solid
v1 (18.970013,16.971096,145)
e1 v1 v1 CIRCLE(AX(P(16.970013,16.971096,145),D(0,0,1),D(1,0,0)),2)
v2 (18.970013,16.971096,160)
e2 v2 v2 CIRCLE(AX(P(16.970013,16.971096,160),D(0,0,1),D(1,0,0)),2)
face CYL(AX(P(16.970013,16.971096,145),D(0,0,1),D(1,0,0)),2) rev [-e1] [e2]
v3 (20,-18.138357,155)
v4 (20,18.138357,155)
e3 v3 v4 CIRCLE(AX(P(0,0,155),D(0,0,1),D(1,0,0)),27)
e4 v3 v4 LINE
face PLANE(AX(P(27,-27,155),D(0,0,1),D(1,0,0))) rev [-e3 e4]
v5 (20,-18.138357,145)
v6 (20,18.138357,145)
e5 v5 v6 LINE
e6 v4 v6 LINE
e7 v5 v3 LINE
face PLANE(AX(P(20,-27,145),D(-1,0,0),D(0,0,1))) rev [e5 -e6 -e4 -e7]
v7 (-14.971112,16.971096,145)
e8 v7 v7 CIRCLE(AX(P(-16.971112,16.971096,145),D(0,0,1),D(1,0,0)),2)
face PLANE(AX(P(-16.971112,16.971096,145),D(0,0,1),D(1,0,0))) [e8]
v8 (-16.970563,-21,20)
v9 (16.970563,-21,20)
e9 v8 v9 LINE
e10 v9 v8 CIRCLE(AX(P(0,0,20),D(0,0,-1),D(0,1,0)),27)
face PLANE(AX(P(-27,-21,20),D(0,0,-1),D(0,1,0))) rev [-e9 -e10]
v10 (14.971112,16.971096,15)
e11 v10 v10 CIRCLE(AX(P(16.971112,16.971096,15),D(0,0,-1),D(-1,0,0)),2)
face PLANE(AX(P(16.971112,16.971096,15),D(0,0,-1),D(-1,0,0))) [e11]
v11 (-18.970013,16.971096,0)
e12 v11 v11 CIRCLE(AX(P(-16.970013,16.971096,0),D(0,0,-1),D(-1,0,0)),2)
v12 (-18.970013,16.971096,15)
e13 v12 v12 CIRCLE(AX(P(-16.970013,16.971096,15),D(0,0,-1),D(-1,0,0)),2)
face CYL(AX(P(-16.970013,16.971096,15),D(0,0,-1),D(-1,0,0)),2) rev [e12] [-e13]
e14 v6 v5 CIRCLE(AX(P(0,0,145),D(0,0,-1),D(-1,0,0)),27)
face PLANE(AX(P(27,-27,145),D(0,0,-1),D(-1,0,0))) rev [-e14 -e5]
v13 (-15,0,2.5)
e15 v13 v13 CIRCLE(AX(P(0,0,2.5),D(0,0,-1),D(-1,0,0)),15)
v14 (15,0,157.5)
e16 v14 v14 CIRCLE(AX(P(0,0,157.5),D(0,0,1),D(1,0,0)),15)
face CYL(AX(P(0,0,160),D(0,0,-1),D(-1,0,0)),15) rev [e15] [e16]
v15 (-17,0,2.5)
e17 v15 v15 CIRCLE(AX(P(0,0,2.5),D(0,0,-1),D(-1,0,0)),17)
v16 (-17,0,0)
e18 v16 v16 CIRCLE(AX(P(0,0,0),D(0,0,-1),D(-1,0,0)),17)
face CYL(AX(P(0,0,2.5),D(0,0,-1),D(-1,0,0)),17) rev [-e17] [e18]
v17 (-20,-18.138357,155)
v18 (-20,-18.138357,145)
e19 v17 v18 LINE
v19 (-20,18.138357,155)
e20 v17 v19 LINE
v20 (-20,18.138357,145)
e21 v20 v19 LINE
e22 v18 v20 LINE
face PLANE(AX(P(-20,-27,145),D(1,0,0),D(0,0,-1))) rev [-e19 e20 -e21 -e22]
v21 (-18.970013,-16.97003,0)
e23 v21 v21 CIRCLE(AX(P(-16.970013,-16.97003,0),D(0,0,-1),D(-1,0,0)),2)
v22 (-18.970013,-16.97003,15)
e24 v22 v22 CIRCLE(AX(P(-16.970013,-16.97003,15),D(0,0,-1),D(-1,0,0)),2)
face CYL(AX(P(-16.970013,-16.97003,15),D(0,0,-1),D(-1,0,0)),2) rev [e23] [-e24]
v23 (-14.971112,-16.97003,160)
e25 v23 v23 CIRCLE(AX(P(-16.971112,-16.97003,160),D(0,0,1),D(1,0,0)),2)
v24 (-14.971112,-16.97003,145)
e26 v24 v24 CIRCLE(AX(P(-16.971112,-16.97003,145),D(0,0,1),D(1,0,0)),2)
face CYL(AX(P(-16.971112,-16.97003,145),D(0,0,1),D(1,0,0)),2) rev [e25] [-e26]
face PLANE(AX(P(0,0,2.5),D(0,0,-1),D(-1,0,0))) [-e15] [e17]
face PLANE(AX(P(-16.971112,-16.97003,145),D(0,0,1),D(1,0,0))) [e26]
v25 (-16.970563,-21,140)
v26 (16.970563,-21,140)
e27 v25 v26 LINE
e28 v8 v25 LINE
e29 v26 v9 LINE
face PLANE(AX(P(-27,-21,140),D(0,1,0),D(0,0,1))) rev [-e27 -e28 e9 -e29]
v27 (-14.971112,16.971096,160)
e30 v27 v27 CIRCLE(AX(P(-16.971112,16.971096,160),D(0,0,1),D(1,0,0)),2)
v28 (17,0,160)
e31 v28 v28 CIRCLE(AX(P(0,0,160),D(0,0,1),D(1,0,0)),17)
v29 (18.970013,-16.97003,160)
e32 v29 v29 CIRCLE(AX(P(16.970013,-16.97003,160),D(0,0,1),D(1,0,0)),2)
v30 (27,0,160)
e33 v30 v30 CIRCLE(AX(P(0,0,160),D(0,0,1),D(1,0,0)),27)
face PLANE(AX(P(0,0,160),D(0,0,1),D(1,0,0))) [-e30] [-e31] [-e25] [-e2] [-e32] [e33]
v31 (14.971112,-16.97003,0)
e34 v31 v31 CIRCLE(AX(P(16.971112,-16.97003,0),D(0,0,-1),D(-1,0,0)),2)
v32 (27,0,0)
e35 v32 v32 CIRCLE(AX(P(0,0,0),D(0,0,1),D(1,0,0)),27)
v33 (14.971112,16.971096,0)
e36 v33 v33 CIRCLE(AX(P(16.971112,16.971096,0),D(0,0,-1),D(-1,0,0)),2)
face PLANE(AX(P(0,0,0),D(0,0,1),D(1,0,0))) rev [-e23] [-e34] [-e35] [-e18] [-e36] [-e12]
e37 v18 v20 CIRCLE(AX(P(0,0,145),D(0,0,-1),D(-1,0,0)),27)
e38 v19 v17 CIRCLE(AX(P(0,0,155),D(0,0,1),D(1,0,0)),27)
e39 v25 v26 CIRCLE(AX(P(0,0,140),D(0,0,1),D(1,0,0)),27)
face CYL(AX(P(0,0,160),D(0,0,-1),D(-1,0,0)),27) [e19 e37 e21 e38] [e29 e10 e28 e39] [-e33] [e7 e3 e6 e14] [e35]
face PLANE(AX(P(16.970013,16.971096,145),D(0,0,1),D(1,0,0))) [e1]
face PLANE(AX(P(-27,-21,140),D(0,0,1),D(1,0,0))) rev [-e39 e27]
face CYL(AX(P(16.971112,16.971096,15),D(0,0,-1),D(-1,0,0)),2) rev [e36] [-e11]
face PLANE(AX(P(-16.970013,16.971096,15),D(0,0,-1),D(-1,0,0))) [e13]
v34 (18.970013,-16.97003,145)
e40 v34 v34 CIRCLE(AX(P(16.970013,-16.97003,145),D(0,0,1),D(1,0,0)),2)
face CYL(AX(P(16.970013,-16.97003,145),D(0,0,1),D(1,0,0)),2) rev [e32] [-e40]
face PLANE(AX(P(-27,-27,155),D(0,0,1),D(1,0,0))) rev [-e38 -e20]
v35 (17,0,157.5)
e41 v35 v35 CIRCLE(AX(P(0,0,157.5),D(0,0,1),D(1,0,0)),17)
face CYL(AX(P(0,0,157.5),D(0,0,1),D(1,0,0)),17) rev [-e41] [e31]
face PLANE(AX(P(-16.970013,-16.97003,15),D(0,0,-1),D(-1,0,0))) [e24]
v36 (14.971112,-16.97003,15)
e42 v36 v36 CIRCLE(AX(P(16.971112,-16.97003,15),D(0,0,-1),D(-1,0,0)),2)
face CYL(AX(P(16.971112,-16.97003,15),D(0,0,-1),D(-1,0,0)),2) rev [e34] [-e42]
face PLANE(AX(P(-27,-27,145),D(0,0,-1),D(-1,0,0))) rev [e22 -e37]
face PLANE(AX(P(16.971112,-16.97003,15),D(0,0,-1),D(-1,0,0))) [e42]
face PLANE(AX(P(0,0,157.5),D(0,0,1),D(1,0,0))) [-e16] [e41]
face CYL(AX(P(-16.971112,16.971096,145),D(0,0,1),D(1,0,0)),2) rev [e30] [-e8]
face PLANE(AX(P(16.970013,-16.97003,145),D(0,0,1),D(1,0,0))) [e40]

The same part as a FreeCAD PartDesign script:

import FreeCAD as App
import Part
import Sketcher

V = App.Vector
Q = App.Units.Quantity


def add_polygon(sketch, points):
    """Adds a closed chain of lines whose ends are joined by coincident constraints."""
    first, n = sketch.GeometryCount, len(points)
    for a, b in zip(points, points[1:] + points[:1]):
        sketch.addGeometry(Part.LineSegment(App.Vector(*a, 0), App.Vector(*b, 0)), False)
    for i in range(n):
        sketch.addConstraint(Sketcher.Constraint("Coincident", first + i, 2, first + (i + 1) % n, 1))

doc = App.newDocument("Part")
body = doc.addObject("PartDesign::Body", "Body")

sketch1 = body.newObject("Sketcher::SketchObject", "Sketch")
sketch1.AttachmentSupport = (doc.getObject("XY_Plane"), [""])
sketch1.MapMode = "FlatFace"
sketch1.addGeometry([
    Part.Circle(V(0, 0, 0), V(0, 0, 1), 27),
    Part.Circle(V(0, 0, 0), V(0, 0, 1), 15),
], False)
sketch1.addConstraint([
    Sketcher.Constraint("Coincident", 0, 3, -1, 1),
    Sketcher.Constraint("Coincident", 1, 3, -1, 1),
    Sketcher.Constraint("Diameter", 0, Q("54 mm")),
    Sketcher.Constraint("Diameter", 1, Q("30 mm")),
])
pad1 = body.newObject("PartDesign::Pad", "Pad")
pad1.Profile = sketch1
pad1.Length = 160

sketch2 = body.newObject("Sketcher::SketchObject", "Sketch001")
sketch2.AttachmentSupport = (doc.getObject("XY_Plane"), [""])
sketch2.MapMode = "FlatFace"
sketch2.AttachmentOffset = App.Placement(V(0, 0, 160), App.Rotation())
sketch2.addGeometry([
    Part.Circle(V(16.970013, 16.971096, 0), V(0, 0, 1), 2),
    Part.Circle(V(16.970013, -16.97003, 0), V(0, 0, 1), 2),
    Part.Circle(V(-16.971112, -16.97003, 0), V(0, 0, 1), 2),
    Part.Circle(V(-16.971112, 16.971096, 0), V(0, 0, 1), 2),
], False)
sketch2.addConstraint([
    Sketcher.Constraint("Equal", 0, 1),
    Sketcher.Constraint("Equal", 1, 2),
    Sketcher.Constraint("Equal", 2, 3),
    Sketcher.Constraint("Horizontal", 1, 3, 2, 3),
    Sketcher.Constraint("Horizontal", 0, 3, 3, 3),
    Sketcher.Constraint("Vertical", 0, 3, 1, 3),
    Sketcher.Constraint("Vertical", 2, 3, 3, 3),
    Sketcher.Constraint("Diameter", 0, Q("4 mm")),
    Sketcher.Constraint("DistanceY", 1, 3, -1, 1, Q("16.97003 mm")),
    Sketcher.Constraint("DistanceX", -1, 1, 0, 3, Q("16.970013 mm")),
    Sketcher.Constraint("DistanceY", -1, 1, 0, 3, Q("16.971096 mm")),
    Sketcher.Constraint("DistanceX", 2, 3, -1, 1, Q("16.971112 mm")),
])
pocket1 = body.newObject("PartDesign::Pocket", "Pocket")
pocket1.Profile = sketch2
pocket1.Length = 15

sketch3 = body.newObject("Sketcher::SketchObject", "Sketch002")
sketch3.AttachmentSupport = (doc.getObject("XY_Plane"), [""])
sketch3.MapMode = "FlatFace"
sketch3.addGeometry([
    Part.Circle(V(-16.970013, 16.971096, 0), V(0, 0, 1), 2),
    Part.Circle(V(16.971112, 16.971096, 0), V(0, 0, 1), 2),
    Part.Circle(V(16.971112, -16.97003, 0), V(0, 0, 1), 2),
    Part.Circle(V(-16.970013, -16.97003, 0), V(0, 0, 1), 2),
], False)
sketch3.addConstraint([
    Sketcher.Constraint("Equal", 0, 1),
    Sketcher.Constraint("Equal", 1, 2),
    Sketcher.Constraint("Equal", 2, 3),
    Sketcher.Constraint("Horizontal", 0, 3, 1, 3),
    Sketcher.Constraint("Horizontal", 2, 3, 3, 3),
    Sketcher.Constraint("Vertical", 1, 3, 2, 3),
    Sketcher.Constraint("Vertical", 0, 3, 3, 3),
    Sketcher.Constraint("Diameter", 0, Q("4 mm")),
    Sketcher.Constraint("DistanceY", 2, 3, -1, 1, Q("16.97003 mm")),
    Sketcher.Constraint("DistanceX", 0, 3, -1, 1, Q("16.970013 mm")),
    Sketcher.Constraint("DistanceY", -1, 1, 0, 3, Q("16.971096 mm")),
    Sketcher.Constraint("DistanceX", -1, 1, 1, 3, Q("16.971112 mm")),
])
pocket2 = body.newObject("PartDesign::Pocket", "Pocket001")
pocket2.Profile = sketch3
pocket2.Length = 15
pocket2.Reversed = True

sketch4 = body.newObject("Sketcher::SketchObject", "Sketch003")
sketch4.AttachmentSupport = (doc.getObject("XY_Plane"), [""])
sketch4.MapMode = "FlatFace"
sketch4.AttachmentOffset = App.Placement(V(0, 0, 160), App.Rotation())
sketch4.addGeometry([
    Part.Circle(V(0, 0, 0), V(0, 0, 1), 17),
    Part.Circle(V(0, 0, 0), V(0, 0, 1), 15),
], False)
sketch4.addConstraint([
    Sketcher.Constraint("Coincident", 0, 3, -1, 1),
    Sketcher.Constraint("Coincident", 1, 3, -1, 1),
    Sketcher.Constraint("Diameter", 0, Q("34 mm")),
    Sketcher.Constraint("Diameter", 1, Q("30 mm")),
])
pocket3 = body.newObject("PartDesign::Pocket", "Pocket002")
pocket3.Profile = sketch4
pocket3.Length = 2.5

sketch5 = body.newObject("Sketcher::SketchObject", "Sketch004")
sketch5.AttachmentSupport = (doc.getObject("XY_Plane"), [""])
sketch5.MapMode = "FlatFace"
sketch5.addGeometry([
    Part.Circle(V(0, 0, 0), V(0, 0, 1), 17),
    Part.Circle(V(0, 0, 0), V(0, 0, 1), 15),
], False)
sketch5.addConstraint([
    Sketcher.Constraint("Coincident", 0, 3, -1, 1),
    Sketcher.Constraint("Coincident", 1, 3, -1, 1),
    Sketcher.Constraint("Diameter", 0, Q("34 mm")),
    Sketcher.Constraint("Diameter", 1, Q("30 mm")),
])
pocket4 = body.newObject("PartDesign::Pocket", "Pocket003")
pocket4.Profile = sketch5
pocket4.Length = 2.5
pocket4.Reversed = True

sketch6 = body.newObject("Sketcher::SketchObject", "Sketch005")
sketch6.AttachmentSupport = (doc.getObject("YZ_Plane"), [""])
sketch6.MapMode = "FlatFace"
add_polygon(sketch6, [(-21, 140), (-27, 140), (-27, 20), (-21, 20)])
sketch6.addConstraint([
    Sketcher.Constraint("Horizontal", 0),
    Sketcher.Constraint("Vertical", 1),
    Sketcher.Constraint("Horizontal", 2),
    Sketcher.Constraint("Vertical", 3),
    Sketcher.Constraint("DistanceX", 0, 2, 0, 1, Q("6 mm")),
    Sketcher.Constraint("DistanceY", 1, 2, 1, 1, Q("120 mm")),
    Sketcher.Constraint("DistanceX", 0, 2, -1, 1, Q("27 mm")),
    Sketcher.Constraint("DistanceY", -1, 1, 0, 2, Q("140 mm")),
])
pocket5 = body.newObject("PartDesign::Pocket", "Pocket004")
pocket5.Profile = sketch6
pocket5.Type = "ThroughAll"
pocket5.Midplane = True

sketch7 = body.newObject("Sketcher::SketchObject", "Sketch006")
sketch7.AttachmentSupport = (doc.getObject("XZ_Plane"), [""])
sketch7.MapMode = "FlatFace"
add_polygon(sketch7, [(20, 145), (20, 155), (27, 155), (27, 145)])
add_polygon(sketch7, [(-27, 145), (-27, 155), (-20, 155), (-20, 145)])
sketch7.addConstraint([
    Sketcher.Constraint("Vertical", 0),
    Sketcher.Constraint("Horizontal", 1),
    Sketcher.Constraint("Vertical", 2),
    Sketcher.Constraint("Horizontal", 3),
    Sketcher.Constraint("Vertical", 4),
    Sketcher.Constraint("Horizontal", 5),
    Sketcher.Constraint("Vertical", 6),
    Sketcher.Constraint("Horizontal", 7),
    Sketcher.Constraint("Symmetric", 1, 2, 4, 2, -2),
    Sketcher.Constraint("Symmetric", 3, 2, 6, 2, -2),
    Sketcher.Constraint("DistanceX", 1, 1, 1, 2, Q("7 mm")),
    Sketcher.Constraint("DistanceY", 0, 1, 0, 2, Q("10 mm")),
    Sketcher.Constraint("DistanceX", -1, 1, 0, 2, Q("20 mm")),
    Sketcher.Constraint("DistanceY", -1, 1, 0, 2, Q("155 mm")),
])
pocket6 = body.newObject("PartDesign::Pocket", "Pocket005")
pocket6.Profile = sketch7
pocket6.Type = "ThroughAll"
pocket6.Midplane = True

doc.recompute()
